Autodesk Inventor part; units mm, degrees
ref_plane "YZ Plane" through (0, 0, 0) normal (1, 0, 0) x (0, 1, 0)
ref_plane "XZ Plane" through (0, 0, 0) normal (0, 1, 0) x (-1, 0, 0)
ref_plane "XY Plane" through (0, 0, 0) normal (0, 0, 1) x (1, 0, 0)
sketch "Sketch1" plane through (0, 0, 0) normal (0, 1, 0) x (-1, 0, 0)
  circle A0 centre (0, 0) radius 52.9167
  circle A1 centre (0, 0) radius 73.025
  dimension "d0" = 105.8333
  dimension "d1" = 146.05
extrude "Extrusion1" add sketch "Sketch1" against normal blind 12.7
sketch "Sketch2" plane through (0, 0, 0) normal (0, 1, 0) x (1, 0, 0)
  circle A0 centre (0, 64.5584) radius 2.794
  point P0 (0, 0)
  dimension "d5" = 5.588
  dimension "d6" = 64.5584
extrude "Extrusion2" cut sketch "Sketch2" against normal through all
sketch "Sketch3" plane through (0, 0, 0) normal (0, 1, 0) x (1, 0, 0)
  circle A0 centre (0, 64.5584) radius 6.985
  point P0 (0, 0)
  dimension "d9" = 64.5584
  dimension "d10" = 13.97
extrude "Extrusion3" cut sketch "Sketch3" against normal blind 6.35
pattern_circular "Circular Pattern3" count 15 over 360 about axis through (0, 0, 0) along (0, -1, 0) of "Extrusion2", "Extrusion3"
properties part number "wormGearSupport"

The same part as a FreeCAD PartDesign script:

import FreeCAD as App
import Part
import Sketcher

V = App.Vector
Q = App.Units.Quantity

doc = App.newDocument("Part")
body = doc.addObject("PartDesign::Body", "Body")

# Sketch on XZ plane
sketch1 = body.newObject("Sketcher::SketchObject", "Sketch")
sketch1.AttachmentSupport = (doc.getObject("XZ_Plane"), [""])
sketch1.MapMode = "FlatFace"
sketch1.addGeometry([
    Part.Circle(V(0, 0, 0), V(0, 0, 1), 73),
    Part.Circle(V(0, 0, 0), V(0, 0, 1), 53),
], False)
sketch1.addConstraint([
    Sketcher.Constraint("Coincident", 0, 3, -1, 1),
    Sketcher.Constraint("Coincident", 1, 3, -1, 1),
    Sketcher.Constraint("Diameter", 0, Q("5.75 in")),
    Sketcher.Constraint("Diameter", 1, Q("105.8334 mm")),
])
pad1 = body.newObject("PartDesign::Pad", "Pad")
pad1.Profile = sketch1
pad1.Length = Q("0.5 in")

# Sketch on XZ plane
sketch2 = body.newObject("Sketcher::SketchObject", "Sketch001")
sketch2.AttachmentSupport = (doc.getObject("XZ_Plane"), [""])
sketch2.MapMode = "FlatFace"
sketch2.addGeometry(Part.Circle(V(0, -64.6, 0), V(0, 0, 1), 2.8), False)
sketch2.addConstraint([
    Sketcher.Constraint("PointOnObject", 0, 3, -2),
    Sketcher.Constraint("Diameter", 0, Q("0.22 in")),
    Sketcher.Constraint("DistanceY", 0, 3, -1, 1, Q("64.5584 mm")),
])
pocket1 = body.newObject("PartDesign::Pocket", "Pocket")
pocket1.Profile = sketch2
pocket1.Type = "ThroughAll"
pocket1.Reversed = True

# Sketch on XZ plane
sketch3 = body.newObject("Sketcher::SketchObject", "Sketch002")
sketch3.AttachmentSupport = (doc.getObject("XZ_Plane"), [""])
sketch3.MapMode = "FlatFace"
sketch3.addGeometry(Part.Circle(V(0, -65, 0), V(0, 0, 1), 7), False)
sketch3.addConstraint([
    Sketcher.Constraint("PointOnObject", 0, 3, -2),
    Sketcher.Constraint("Diameter", 0, Q("0.55 in")),
    Sketcher.Constraint("DistanceY", 0, 3, -1, 1, Q("64.5584 mm")),
])
pocket2 = body.newObject("PartDesign::Pocket", "Pocket001")
pocket2.Profile = sketch3
pocket2.Length = Q("0.25 in")
pocket2.Reversed = True
doc.recompute()

polarpattern = body.newObject("PartDesign::PolarPattern", "PolarPattern")
polarpattern.Originals = [pocket1, pocket2]
polarpattern.Axis = (doc.getObject("Y_Axis"), [""])
polarpattern.Angle = 360
polarpattern.Occurrences = 15
body.Tip = polarpattern

doc.recompute()
